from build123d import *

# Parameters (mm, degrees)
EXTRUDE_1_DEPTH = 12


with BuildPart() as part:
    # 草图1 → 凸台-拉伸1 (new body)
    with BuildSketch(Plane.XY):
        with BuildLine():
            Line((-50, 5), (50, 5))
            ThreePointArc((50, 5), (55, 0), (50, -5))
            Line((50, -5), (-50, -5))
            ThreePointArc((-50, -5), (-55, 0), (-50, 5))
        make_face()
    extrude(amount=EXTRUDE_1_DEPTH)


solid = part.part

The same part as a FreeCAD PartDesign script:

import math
import FreeCAD as App
import Part
import Sketcher
from FreeCAD import Vector
Q = App.Units.Quantity

doc = App.newDocument("Part")
body = doc.addObject("PartDesign::Body", "Body")

# Sketch on XY plane
sketch1 = body.newObject("Sketcher::SketchObject", "Sketch")
sketch1.AttachmentSupport = (doc.getObject("XY_Plane"), [""])
sketch1.MapMode = "FlatFace"
sketch1.addGeometry([
    Part.LineSegment(Vector(50, 5, 0), Vector(-50, 5, 0)),
    Part.ArcOfCircle(Part.Circle(Vector(-50, 0, 0), Vector(0, 0, 1), 5), math.radians(90), math.radians(270)),
    Part.LineSegment(Vector(-50, -5, 0), Vector(50, -5, 0)),
    Part.ArcOfCircle(Part.Circle(Vector(50, 0, 0), Vector(0, 0, 1), 5), math.radians(-90), math.radians(90)),
], False)
sketch1.addConstraint([
    Sketcher.Constraint("Tangent", 0, 2, 1, 1),
    Sketcher.Constraint("Tangent", 1, 2, 2, 1),
    Sketcher.Constraint("Tangent", 2, 2, 3, 1),
    Sketcher.Constraint("Tangent", 3, 2, 0, 1),
    Sketcher.Constraint("Horizontal", 0),
    Sketcher.Constraint("Horizontal", 2),
    Sketcher.Constraint("Symmetric", 1, 3, 3, 3, -1, 1),
    Sketcher.Constraint("Radius", 1, Q("5 mm")),
    Sketcher.Constraint("DistanceX", 0, 2, 0, 1, Q("100 mm")),
])
pad1 = body.newObject("PartDesign::Pad", "Pad")
pad1.Profile = sketch1
pad1.Length = 12

doc.recompute()
